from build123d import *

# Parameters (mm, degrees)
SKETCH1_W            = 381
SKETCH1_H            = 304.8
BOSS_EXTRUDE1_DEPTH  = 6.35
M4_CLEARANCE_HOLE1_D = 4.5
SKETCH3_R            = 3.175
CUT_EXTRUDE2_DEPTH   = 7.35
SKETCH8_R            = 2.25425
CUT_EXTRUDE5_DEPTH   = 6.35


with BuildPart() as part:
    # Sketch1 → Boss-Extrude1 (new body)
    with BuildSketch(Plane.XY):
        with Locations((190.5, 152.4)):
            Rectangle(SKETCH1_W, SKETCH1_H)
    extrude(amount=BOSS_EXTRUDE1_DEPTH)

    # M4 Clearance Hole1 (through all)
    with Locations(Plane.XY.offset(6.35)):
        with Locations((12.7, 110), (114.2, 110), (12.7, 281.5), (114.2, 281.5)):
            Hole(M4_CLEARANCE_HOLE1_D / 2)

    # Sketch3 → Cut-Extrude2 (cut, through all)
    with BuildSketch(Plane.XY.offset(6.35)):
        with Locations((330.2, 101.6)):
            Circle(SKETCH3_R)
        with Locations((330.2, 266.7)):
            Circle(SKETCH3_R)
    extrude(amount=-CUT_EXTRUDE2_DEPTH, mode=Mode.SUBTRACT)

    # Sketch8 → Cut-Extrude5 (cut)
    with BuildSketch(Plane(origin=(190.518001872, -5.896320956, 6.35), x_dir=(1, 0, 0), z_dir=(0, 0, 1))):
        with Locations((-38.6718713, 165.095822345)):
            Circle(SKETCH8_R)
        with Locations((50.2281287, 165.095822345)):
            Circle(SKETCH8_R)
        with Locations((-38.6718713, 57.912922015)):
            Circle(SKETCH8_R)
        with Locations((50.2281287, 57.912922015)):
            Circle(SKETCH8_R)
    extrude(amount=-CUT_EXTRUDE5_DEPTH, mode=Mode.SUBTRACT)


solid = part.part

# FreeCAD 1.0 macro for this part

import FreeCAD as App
import Part
import Sketcher

V = App.Vector
Q = App.Units.Quantity


def add_polygon(sketch, points):
    """Adds a closed chain of lines whose ends are joined by coincident constraints."""
    first, n = sketch.GeometryCount, len(points)
    for a, b in zip(points, points[1:] + points[:1]):
        sketch.addGeometry(Part.LineSegment(App.Vector(*a, 0), App.Vector(*b, 0)), False)
    for i in range(n):
        sketch.addConstraint(Sketcher.Constraint("Coincident", first + i, 2, first + (i + 1) % n, 1))

doc = App.newDocument("Part")
body = doc.addObject("PartDesign::Body", "Body")

# Sketch on XY plane
sketch1 = body.newObject("Sketcher::SketchObject", "Sketch")
sketch1.AttachmentSupport = (doc.getObject("XY_Plane"), [""])
sketch1.MapMode = "FlatFace"
add_polygon(sketch1, [(0, 304.8), (0, 0), (381, 0), (381, 304.8)])  # lines 0-3
sketch1.addConstraint([
    Sketcher.Constraint("Vertical", 0),
    Sketcher.Constraint("Horizontal", 1),
    Sketcher.Constraint("Vertical", 2),
    Sketcher.Constraint("Horizontal", 3),
    Sketcher.Constraint("Coincident", 0, 2, -1, 1),
    Sketcher.Constraint("DistanceX", 1, 1, 1, 2, Q("15 in")),
    Sketcher.Constraint("DistanceY", 0, 2, 0, 1, Q("12 in")),
])
pad1 = body.newObject("PartDesign::Pad", "Pad")
pad1.Profile = sketch1
pad1.Length = Q("0.25 in")

# Sketch on XY plane
sketch2 = body.newObject("Sketcher::SketchObject", "Sketch001")
sketch2.AttachmentSupport = (doc.getObject("XY_Plane"), [""])
sketch2.MapMode = "FlatFace"
sketch2.AttachmentOffset = App.Placement(V(0, 0, 0.25 * 25.4), App.Rotation())
sketch2.addGeometry([
    Part.Circle(V(12.7, 110, 0), V(0, 0, 1), 2.25),
    Part.Circle(V(114.2, 110, 0), V(0, 0, 1), 2.25),
    Part.Circle(V(12.7, 281.5, 0), V(0, 0, 1), 2.25),
    Part.Circle(V(114.2, 281.5, 0), V(0, 0, 1), 2.25),
], False)
sketch2.addConstraint([
    Sketcher.Constraint("Equal", 0, 1),
    Sketcher.Constraint("Equal", 1, 2),
    Sketcher.Constraint("Equal", 2, 3),
    Sketcher.Constraint("Horizontal", 0, 3, 1, 3),
    Sketcher.Constraint("Horizontal", 2, 3, 3, 3),
    Sketcher.Constraint("Vertical", 0, 3, 2, 3),
    Sketcher.Constraint("Vertical", 1, 3, 3, 3),
    Sketcher.Constraint("DistanceX", -1, 1, 0, 3, Q("0.5 in")),
    Sketcher.Constraint("Diameter", 0, Q("4.5 mm")),
    Sketcher.Constraint("DistanceY", -1, 1, 0, 3, Q("110 mm")),
    Sketcher.Constraint("DistanceX", -1, 1, 1, 3, Q("114.2 mm")),
    Sketcher.Constraint("DistanceY", -1, 1, 2, 3, Q("281.5 mm")),
])
doc.recompute()
hole = body.newObject("PartDesign::Hole", "Hole")
hole.Profile = sketch2
hole.ThreadType = "None"
hole.Diameter = 4.5
hole.DepthType = "ThroughAll"

# Sketch on XY plane
sketch3 = body.newObject("Sketcher::SketchObject", "Sketch002")
sketch3.AttachmentSupport = (doc.getObject("XY_Plane"), [""])
sketch3.MapMode = "FlatFace"
sketch3.AttachmentOffset = App.Placement(V(0, 0, 0.25 * 25.4), App.Rotation())
sketch3.addGeometry([
    Part.Circle(V(330.2, 101.6, 0), V(0, 0, 1), 3.175),
    Part.Circle(V(330.2, 266.7, 0), V(0, 0, 1), 3.175),
], False)
sketch3.addConstraint([
    Sketcher.Constraint("Equal", 0, 1),
    Sketcher.Constraint("Vertical", 0, 3, 1, 3),
    Sketcher.Constraint("Diameter", 0, Q("0.25 in")),
    Sketcher.Constraint("DistanceX", -1, 1, 0, 3, Q("13 in")),
    Sketcher.Constraint("DistanceY", -1, 1, 0, 3, Q("4 in")),
    Sketcher.Constraint("DistanceY", -1, 1, 1, 3, Q("10.5 in")),
])
pocket1 = body.newObject("PartDesign::Pocket", "Pocket")
pocket1.Profile = sketch3
pocket1.Type = "ThroughAll"

# Sketch on XY plane
sketch4 = body.newObject("Sketcher::SketchObject", "Sketch003")
sketch4.AttachmentSupport = (doc.getObject("XY_Plane"), [""])
sketch4.MapMode = "FlatFace"
sketch4.AttachmentOffset = App.Placement(V(0, 0, 0.25 * 25.4), App.Rotation())
sketch4.addGeometry([
    Part.Circle(V(151.846131, 159.199501, 0), V(0, 0, 1), 2.25425),
    Part.Circle(V(240.746131, 159.199501, 0), V(0, 0, 1), 2.25425),
    Part.Circle(V(151.846131, 52.016601, 0), V(0, 0, 1), 2.25425),
    Part.Circle(V(240.746131, 52.016601, 0), V(0, 0, 1), 2.25425),
], False)
sketch4.addConstraint([
    Sketcher.Constraint("Equal", 0, 1),
    Sketcher.Constraint("Equal", 1, 2),
    Sketcher.Constraint("Equal", 2, 3),
    Sketcher.Constraint("Horizontal", 0, 3, 1, 3),
    Sketcher.Constraint("Horizontal", 2, 3, 3, 3),
    Sketcher.Constraint("Vertical", 0, 3, 2, 3),
    Sketcher.Constraint("Vertical", 1, 3, 3, 3),
    Sketcher.Constraint("Diameter", 0, Q("0.1775 in")),
    Sketcher.Constraint("DistanceX", 0, 3, 1, 3, Q("3.5 in")),
    Sketcher.Constraint("DistanceY", -1, 1, 0, 3, Q("159.199501 mm")),
    Sketcher.Constraint("DistanceY", -1, 1, 2, 3, Q("52.016601 mm")),
    Sketcher.Constraint("DistanceX", -1, 1, 0, 3, Q("151.846131 mm")),
])
pocket2 = body.newObject("PartDesign::Pocket", "Pocket001")
pocket2.Profile = sketch4
pocket2.Length = Q("0.25 in")

doc.recompute()
